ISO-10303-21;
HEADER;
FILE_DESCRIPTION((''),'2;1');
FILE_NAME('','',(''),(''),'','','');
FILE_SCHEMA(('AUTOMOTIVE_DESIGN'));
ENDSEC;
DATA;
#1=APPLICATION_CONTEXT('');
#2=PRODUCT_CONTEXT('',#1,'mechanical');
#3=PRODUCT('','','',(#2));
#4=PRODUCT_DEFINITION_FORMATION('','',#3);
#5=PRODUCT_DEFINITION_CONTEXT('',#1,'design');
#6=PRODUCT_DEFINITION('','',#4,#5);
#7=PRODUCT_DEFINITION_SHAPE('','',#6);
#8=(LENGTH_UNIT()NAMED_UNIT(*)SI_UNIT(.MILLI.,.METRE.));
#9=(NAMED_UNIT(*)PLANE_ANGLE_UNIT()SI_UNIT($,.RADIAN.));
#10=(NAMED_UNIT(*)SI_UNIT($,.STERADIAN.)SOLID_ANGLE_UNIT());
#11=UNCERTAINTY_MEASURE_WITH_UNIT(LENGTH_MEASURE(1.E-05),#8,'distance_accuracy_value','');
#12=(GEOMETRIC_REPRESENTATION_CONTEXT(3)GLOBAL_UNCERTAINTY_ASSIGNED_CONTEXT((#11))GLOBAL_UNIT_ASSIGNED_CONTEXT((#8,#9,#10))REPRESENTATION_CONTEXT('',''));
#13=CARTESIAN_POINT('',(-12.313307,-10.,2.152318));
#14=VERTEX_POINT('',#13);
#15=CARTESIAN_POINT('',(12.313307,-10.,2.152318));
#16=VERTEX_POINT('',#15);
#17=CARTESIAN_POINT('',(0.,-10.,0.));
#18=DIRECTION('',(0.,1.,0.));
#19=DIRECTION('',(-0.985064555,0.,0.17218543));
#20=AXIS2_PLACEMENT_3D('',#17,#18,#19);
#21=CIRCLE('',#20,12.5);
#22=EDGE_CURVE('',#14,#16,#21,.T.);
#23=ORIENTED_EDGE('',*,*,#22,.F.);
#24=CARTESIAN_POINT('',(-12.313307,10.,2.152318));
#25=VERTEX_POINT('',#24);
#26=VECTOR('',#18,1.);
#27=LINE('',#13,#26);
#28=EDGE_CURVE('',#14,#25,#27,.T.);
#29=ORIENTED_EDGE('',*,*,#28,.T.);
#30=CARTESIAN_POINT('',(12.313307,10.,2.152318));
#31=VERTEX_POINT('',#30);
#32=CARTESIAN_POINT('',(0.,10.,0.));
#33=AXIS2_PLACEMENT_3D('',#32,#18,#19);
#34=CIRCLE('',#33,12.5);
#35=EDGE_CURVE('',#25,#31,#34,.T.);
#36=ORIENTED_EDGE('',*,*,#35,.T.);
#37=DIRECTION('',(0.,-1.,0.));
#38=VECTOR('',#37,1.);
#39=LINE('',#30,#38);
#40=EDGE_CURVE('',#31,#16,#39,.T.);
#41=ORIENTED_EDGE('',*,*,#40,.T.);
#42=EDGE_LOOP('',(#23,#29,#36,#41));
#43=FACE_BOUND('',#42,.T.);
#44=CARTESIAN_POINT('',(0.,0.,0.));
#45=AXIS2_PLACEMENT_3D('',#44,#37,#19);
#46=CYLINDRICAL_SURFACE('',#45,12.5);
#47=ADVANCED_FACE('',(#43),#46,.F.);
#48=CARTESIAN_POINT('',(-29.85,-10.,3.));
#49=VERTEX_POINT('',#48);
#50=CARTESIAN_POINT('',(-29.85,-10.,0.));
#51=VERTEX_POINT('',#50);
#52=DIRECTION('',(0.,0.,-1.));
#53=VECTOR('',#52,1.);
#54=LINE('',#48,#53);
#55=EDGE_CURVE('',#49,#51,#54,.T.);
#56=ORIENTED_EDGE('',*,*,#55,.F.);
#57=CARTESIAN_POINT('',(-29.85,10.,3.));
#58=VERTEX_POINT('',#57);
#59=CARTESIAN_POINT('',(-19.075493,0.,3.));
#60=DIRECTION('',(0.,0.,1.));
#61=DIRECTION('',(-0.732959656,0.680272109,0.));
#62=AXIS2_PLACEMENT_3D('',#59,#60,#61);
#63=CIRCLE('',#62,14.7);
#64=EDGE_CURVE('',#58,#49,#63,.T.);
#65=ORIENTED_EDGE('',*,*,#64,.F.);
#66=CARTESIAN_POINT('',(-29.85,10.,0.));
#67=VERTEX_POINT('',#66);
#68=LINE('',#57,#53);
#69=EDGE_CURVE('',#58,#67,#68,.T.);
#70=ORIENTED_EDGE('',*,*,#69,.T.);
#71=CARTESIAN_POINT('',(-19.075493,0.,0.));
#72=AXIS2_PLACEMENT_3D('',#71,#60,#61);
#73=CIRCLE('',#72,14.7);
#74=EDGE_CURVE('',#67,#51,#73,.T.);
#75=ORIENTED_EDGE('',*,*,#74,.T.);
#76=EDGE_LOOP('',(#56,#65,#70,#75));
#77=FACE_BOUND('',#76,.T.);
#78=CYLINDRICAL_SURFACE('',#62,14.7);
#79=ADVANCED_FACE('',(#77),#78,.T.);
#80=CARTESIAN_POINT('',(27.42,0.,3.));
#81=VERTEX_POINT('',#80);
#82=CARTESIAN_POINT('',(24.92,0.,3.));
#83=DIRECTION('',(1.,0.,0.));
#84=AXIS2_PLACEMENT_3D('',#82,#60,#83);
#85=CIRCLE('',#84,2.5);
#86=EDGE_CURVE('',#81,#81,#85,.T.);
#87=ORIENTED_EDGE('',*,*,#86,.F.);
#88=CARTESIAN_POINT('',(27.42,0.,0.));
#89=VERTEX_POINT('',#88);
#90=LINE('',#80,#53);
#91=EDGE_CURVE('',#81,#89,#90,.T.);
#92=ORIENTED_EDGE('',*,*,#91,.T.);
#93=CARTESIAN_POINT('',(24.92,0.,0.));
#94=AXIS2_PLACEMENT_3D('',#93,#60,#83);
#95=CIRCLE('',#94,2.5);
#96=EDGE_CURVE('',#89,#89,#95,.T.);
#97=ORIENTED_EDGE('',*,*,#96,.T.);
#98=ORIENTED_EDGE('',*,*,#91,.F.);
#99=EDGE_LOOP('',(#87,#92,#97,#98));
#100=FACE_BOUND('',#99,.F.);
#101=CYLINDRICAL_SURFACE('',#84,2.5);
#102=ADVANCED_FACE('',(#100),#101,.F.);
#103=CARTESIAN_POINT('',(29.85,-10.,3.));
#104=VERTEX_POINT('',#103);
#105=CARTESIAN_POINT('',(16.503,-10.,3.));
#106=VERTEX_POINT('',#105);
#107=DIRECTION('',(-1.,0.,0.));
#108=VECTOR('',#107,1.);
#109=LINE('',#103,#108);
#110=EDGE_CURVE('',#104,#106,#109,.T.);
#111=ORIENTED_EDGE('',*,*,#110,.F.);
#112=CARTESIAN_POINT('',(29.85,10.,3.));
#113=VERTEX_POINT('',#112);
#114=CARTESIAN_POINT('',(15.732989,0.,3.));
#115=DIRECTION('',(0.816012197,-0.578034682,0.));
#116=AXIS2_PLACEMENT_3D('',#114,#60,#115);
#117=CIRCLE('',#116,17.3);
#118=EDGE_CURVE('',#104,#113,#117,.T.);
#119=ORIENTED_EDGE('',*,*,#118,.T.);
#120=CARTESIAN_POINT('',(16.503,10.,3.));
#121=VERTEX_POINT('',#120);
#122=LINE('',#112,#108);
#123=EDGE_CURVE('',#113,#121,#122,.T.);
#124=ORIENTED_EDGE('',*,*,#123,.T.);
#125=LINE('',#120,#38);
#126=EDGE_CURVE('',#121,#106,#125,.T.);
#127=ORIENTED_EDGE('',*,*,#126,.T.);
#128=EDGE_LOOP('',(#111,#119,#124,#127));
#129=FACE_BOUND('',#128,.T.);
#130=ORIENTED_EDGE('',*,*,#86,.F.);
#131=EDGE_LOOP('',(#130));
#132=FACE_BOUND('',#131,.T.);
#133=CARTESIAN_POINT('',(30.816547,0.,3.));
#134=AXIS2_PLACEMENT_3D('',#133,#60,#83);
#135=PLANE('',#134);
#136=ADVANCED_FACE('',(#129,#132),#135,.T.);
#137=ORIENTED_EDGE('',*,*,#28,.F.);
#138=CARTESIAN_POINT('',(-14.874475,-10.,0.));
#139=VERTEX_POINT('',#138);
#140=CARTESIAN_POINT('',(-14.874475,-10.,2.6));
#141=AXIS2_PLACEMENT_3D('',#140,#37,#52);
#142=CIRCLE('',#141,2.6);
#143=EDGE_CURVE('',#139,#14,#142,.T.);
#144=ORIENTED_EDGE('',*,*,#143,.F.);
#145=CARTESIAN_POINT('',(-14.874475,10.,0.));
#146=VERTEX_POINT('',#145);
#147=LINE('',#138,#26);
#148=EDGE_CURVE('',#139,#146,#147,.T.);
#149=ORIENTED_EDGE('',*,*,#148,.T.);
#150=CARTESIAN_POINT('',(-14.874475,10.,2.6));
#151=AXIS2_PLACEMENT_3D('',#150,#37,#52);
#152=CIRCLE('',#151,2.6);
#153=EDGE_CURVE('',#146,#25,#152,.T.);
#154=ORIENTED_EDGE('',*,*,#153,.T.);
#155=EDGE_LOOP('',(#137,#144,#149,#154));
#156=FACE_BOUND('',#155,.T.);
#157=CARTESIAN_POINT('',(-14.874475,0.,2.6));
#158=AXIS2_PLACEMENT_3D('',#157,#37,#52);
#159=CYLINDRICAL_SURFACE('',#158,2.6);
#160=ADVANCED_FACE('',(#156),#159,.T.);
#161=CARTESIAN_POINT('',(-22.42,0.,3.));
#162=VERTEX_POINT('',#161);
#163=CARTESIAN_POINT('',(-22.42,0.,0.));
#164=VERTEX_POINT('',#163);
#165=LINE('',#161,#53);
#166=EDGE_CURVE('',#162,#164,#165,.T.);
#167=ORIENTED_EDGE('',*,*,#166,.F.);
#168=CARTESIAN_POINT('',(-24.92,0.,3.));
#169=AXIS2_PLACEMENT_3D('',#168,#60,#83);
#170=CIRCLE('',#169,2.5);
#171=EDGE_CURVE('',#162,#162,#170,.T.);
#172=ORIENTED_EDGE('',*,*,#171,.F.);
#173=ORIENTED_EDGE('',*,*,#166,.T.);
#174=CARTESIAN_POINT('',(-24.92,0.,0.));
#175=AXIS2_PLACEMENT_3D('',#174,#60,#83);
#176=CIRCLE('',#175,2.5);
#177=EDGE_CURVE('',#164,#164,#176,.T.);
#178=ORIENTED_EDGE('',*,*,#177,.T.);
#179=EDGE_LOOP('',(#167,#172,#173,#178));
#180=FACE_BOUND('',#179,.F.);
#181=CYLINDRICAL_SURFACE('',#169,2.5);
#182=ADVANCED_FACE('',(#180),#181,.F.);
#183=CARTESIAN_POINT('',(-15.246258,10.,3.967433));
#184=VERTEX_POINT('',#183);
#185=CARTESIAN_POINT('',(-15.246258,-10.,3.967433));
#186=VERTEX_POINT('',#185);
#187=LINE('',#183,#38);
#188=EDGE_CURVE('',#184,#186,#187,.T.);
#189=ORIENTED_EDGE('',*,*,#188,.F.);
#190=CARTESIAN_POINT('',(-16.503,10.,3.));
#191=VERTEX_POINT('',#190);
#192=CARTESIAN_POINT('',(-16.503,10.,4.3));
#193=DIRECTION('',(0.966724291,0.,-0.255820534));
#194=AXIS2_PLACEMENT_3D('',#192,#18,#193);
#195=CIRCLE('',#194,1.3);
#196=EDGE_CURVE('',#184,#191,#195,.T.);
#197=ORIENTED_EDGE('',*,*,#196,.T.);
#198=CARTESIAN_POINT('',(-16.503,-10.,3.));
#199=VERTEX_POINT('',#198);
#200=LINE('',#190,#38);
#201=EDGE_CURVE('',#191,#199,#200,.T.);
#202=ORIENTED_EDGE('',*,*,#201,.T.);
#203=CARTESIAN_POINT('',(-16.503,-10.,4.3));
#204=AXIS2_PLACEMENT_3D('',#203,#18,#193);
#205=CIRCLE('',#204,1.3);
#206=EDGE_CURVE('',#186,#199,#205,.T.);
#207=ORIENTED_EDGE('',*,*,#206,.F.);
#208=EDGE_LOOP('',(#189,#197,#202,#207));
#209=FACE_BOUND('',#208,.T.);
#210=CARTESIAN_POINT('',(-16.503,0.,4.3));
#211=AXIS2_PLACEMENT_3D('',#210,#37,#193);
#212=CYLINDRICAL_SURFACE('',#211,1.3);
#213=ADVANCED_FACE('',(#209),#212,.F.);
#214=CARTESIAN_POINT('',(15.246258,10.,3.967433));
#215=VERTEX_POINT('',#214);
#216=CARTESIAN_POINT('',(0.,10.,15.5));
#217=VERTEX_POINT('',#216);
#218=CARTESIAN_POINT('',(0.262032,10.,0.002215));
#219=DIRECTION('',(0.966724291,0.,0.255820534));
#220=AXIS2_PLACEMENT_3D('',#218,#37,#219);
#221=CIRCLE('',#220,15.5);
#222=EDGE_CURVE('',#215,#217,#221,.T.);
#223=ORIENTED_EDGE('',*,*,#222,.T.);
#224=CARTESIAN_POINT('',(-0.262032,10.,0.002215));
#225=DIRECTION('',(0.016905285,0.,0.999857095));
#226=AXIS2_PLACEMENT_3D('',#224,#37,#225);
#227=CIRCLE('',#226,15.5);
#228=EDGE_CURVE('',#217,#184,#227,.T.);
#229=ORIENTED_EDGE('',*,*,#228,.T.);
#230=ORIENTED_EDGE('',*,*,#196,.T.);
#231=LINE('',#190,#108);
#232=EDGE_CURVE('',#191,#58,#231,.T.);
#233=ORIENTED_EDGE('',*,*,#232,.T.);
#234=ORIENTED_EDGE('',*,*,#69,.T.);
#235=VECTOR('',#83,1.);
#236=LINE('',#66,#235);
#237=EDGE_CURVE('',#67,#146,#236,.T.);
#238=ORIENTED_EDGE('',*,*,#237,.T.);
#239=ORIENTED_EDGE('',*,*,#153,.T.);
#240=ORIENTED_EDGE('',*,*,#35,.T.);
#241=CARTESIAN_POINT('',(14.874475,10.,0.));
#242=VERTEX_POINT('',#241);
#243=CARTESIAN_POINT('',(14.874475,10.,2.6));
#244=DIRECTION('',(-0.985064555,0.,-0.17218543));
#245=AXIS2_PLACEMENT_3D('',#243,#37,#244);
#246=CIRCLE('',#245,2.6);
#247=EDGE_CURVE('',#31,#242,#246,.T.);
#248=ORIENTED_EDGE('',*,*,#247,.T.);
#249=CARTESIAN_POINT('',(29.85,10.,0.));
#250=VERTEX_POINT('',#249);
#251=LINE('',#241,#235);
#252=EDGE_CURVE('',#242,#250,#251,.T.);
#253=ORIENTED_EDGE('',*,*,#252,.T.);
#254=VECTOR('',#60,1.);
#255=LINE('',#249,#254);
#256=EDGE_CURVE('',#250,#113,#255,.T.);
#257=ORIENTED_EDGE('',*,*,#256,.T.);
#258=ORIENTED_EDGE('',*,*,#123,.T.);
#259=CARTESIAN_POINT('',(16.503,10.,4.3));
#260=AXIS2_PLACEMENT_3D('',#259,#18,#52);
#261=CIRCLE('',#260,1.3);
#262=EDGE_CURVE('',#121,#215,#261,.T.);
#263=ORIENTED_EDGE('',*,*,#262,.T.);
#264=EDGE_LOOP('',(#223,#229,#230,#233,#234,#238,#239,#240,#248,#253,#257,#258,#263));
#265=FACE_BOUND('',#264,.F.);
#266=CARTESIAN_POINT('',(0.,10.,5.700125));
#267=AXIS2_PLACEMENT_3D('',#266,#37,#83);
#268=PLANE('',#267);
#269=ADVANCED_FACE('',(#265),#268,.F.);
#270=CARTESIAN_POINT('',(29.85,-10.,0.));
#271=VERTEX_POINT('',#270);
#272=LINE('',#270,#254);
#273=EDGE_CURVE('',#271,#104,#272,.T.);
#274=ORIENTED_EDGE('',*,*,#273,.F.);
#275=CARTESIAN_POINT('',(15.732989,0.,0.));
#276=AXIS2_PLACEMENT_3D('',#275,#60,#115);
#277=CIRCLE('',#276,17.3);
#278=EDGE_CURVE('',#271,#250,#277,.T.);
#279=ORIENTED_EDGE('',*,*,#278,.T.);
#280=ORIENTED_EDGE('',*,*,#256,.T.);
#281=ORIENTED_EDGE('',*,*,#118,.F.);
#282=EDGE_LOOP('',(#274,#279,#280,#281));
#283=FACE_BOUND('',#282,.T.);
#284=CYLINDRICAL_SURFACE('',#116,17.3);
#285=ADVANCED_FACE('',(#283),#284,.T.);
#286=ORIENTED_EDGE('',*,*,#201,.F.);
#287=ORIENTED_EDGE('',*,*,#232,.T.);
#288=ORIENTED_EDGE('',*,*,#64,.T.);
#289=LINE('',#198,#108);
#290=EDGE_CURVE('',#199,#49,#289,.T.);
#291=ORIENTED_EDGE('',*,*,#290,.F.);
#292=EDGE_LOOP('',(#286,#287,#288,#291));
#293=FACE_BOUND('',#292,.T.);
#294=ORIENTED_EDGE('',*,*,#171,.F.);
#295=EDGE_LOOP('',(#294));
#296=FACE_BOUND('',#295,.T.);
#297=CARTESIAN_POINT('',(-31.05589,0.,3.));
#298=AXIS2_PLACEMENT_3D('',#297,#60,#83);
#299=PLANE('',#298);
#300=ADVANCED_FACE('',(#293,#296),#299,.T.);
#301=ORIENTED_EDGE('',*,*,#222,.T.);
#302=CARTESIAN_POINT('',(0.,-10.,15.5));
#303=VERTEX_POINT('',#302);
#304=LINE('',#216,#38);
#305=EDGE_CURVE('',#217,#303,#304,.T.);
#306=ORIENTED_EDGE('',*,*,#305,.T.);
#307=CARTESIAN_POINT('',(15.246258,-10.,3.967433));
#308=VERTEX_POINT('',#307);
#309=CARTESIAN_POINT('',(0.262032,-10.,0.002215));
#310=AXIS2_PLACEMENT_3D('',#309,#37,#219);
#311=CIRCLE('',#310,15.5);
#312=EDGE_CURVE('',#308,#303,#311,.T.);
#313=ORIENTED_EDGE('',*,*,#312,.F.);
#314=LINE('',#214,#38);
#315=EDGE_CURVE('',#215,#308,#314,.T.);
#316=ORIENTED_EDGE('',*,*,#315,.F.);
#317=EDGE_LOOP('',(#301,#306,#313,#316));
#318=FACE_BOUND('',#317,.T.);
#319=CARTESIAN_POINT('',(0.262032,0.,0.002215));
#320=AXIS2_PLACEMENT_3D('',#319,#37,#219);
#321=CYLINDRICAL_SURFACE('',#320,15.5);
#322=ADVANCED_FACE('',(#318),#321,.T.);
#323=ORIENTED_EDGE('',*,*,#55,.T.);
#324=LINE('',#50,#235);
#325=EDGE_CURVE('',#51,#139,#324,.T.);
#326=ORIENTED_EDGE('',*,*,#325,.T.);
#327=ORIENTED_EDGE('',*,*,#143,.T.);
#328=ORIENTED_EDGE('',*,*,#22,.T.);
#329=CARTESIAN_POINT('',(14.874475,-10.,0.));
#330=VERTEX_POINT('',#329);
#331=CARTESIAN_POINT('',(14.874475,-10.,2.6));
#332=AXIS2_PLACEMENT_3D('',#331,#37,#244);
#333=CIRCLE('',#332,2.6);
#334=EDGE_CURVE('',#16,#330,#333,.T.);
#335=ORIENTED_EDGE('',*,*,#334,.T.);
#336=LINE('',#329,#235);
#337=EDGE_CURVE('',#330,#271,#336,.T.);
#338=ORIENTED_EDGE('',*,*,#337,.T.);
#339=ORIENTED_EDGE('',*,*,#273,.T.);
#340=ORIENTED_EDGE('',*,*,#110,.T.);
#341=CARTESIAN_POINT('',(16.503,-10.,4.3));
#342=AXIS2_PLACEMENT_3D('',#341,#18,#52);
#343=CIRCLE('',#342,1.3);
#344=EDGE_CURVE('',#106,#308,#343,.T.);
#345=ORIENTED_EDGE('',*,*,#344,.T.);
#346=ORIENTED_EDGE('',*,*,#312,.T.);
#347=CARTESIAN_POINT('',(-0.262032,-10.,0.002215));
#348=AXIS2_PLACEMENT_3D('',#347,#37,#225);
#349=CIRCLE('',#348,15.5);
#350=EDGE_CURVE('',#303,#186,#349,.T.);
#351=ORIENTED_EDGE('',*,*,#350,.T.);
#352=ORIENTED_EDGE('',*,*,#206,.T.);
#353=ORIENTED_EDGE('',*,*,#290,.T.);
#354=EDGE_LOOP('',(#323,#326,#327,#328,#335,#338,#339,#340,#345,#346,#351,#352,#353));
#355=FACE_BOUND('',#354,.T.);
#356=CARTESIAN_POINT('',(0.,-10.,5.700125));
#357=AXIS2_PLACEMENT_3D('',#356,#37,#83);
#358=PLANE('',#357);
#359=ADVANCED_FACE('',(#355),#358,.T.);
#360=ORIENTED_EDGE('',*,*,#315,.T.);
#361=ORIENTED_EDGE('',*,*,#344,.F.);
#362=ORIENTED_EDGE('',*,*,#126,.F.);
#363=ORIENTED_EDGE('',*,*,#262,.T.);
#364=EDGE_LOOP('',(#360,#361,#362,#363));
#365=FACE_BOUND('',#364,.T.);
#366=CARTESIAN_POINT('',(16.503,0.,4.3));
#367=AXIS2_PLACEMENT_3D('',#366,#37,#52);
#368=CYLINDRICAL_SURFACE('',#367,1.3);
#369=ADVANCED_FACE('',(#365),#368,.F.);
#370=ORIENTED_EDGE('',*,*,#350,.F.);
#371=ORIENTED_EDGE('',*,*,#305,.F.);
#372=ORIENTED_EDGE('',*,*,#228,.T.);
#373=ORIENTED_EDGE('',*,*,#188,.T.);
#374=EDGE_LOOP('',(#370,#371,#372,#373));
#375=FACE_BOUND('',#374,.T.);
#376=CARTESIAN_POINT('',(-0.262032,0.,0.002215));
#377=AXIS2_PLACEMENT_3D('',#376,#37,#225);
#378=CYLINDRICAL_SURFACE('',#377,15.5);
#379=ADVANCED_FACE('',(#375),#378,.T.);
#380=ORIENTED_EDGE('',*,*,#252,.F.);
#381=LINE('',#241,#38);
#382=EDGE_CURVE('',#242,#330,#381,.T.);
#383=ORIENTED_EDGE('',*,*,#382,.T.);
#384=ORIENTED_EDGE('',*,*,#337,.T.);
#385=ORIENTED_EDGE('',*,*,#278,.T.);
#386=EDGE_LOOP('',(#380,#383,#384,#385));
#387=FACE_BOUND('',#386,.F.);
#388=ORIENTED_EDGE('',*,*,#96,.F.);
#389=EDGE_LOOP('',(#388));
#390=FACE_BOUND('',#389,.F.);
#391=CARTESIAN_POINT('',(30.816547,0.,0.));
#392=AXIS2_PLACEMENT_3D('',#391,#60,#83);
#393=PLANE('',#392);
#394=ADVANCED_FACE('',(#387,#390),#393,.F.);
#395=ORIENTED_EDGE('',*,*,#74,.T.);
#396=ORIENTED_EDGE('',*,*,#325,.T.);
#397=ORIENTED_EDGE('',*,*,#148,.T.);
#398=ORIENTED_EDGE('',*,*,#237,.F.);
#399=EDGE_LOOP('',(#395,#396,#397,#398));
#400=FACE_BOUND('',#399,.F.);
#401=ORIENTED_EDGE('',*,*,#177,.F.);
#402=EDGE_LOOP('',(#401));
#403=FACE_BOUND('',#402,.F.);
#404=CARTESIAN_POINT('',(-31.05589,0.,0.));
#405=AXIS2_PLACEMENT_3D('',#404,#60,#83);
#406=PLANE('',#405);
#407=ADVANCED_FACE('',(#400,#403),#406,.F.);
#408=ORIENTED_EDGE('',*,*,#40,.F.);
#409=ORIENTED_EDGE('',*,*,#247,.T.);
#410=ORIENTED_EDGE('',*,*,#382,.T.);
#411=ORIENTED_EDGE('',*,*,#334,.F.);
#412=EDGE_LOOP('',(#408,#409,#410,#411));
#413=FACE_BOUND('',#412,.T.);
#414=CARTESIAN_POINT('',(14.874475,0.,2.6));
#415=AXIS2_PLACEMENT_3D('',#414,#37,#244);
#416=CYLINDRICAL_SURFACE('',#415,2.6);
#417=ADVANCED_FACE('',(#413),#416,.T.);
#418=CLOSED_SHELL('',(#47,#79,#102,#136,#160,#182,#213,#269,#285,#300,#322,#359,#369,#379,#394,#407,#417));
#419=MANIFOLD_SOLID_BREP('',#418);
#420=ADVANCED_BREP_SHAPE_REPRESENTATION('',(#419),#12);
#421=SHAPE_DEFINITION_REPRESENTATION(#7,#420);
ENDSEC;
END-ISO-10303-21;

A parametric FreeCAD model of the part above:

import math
import FreeCAD as App
import Part
import Sketcher
from FreeCAD import Vector
Q = App.Units.Quantity

doc = App.newDocument("Part")
body = doc.addObject("PartDesign::Body", "Body")

# Sketch on XZ plane
sketch1 = body.newObject("Sketcher::SketchObject", "Sketch")
sketch1.AttachmentSupport = (doc.getObject("XZ_Plane"), [""])
sketch1.MapMode = "FlatFace"
sketch1.addGeometry([
    Part.ArcOfCircle(Part.Circle(Vector(0, 0, 0), Vector(0, 0, 1), 12.5), math.radians(10), math.radians(170)),  # 0
    Part.ArcOfCircle(Part.Circle(Vector(14.9, 2.6, 0), Vector(0, 0, 1), 2.6), math.radians(-170), math.radians(-90)),  # 1
    Part.LineSegment(Vector(14.9, 0, 0), Vector(29.9, 0, 0)),  # 2
    Part.LineSegment(Vector(29.9, 0, 0), Vector(29.9, 3, 0)),  # 3
    Part.LineSegment(Vector(29.9, 3, 0), Vector(16.5, 3, 0)),  # 4
    Part.ArcOfCircle(Part.Circle(Vector(16.5, 4.3, 0), Vector(0, 0, 1), 1.3), math.radians(-165), math.radians(-90)),  # 5
    Part.ArcOfCircle(Part.Circle(Vector(0.3, 0, 0), Vector(0, 0, 1), 15.5), math.radians(15), math.radians(91)),  # 6
    Part.ArcOfCircle(Part.Circle(Vector(-0.3, 0, 0), Vector(0, 0, 1), 15.5), math.radians(89), math.radians(165)),  # 7
    Part.ArcOfCircle(Part.Circle(Vector(-16.5, 4.3, 0), Vector(0, 0, 1), 1.3), math.radians(-90), math.radians(-15)),  # 8
    Part.LineSegment(Vector(-16.5, 3, 0), Vector(-29.9, 3, 0)),  # 9
    Part.LineSegment(Vector(-29.9, 3, 0), Vector(-29.9, 0, 0)),  # 10
    Part.LineSegment(Vector(-29.9, 0, 0), Vector(-14.9, 0, 0)),  # 11
    Part.ArcOfCircle(Part.Circle(Vector(-14.9, 2.6, 0), Vector(0, 0, 1), 2.6), math.radians(-90), math.radians(-10)),  # 12
], False)
sketch1.addConstraint([
    Sketcher.Constraint("Tangent", 0, 1, 1, 1),
    Sketcher.Constraint("Tangent", 1, 2, 2, 1),
    Sketcher.Constraint("Coincident", 2, 2, 3, 1),
    Sketcher.Constraint("Coincident", 3, 2, 4, 1),
    Sketcher.Constraint("Tangent", 4, 2, 5, 2),
    Sketcher.Constraint("Tangent", 5, 1, 6, 1),
    Sketcher.Constraint("Coincident", 6, 2, 7, 1),
    Sketcher.Constraint("Tangent", 7, 2, 8, 2),
    Sketcher.Constraint("Tangent", 8, 1, 9, 1),
    Sketcher.Constraint("Coincident", 9, 2, 10, 1),
    Sketcher.Constraint("Coincident", 10, 2, 11, 1),
    Sketcher.Constraint("Tangent", 11, 2, 12, 1),
    Sketcher.Constraint("Tangent", 12, 2, 0, 2),
    Sketcher.Constraint("Horizontal", 2),
    Sketcher.Constraint("Vertical", 3),
    Sketcher.Constraint("Horizontal", 4),
    Sketcher.Constraint("Horizontal", 9),
    Sketcher.Constraint("Vertical", 10),
    Sketcher.Constraint("Horizontal", 11),
    Sketcher.Constraint("Coincident", 0, 3, -1, 1),
    Sketcher.Constraint("Equal", 6, 7),
    Sketcher.Constraint("Equal", 5, 8),
    Sketcher.Constraint("Equal", 1, 12),
    Sketcher.Constraint("Symmetric", 2, 2, 10, 2, -1, 1),
    Sketcher.Constraint("Symmetric", 6, 3, 7, 3, -2),
    Sketcher.Constraint("PointOnObject", 1, 2, -1),
    Sketcher.Constraint("Horizontal", 5, 3, 8, 3),
    Sketcher.Constraint("Radius", 0, Q("12.5 mm")),
    Sketcher.Constraint("Radius", 1, Q("2.6 mm")),
    Sketcher.Constraint("Radius", 5, Q("1.3 mm")),
    Sketcher.Constraint("Radius", 6, Q("15.5 mm")),
    Sketcher.Constraint("DistanceY", 3, 1, 3, 2, Q("3 mm")),
    Sketcher.Constraint("DistanceY", -1, 1, 6, 2, Q("15.5 mm")),
    Sketcher.Constraint("DistanceX", 4, 2, 4, 1, Q("13.347 mm")),
    Sketcher.Constraint("DistanceX", -1, 1, 2, 2, Q("29.85 mm")),
])
pad1 = body.newObject("PartDesign::Pad", "Pad")
pad1.Profile = sketch1
pad1.Length = 20
pad1.Midplane = True

# Sketch on XY plane
sketch2 = body.newObject("Sketcher::SketchObject", "Sketch001")
sketch2.AttachmentSupport = (doc.getObject("XY_Plane"), [""])
sketch2.MapMode = "FlatFace"
sketch2.AttachmentOffset = App.Placement(Vector(0, 0, 3), App.Rotation())
sketch2.addGeometry([
    Part.Circle(Vector(24.9, 0, 0), Vector(0, 0, 1), 2.5),
    Part.Circle(Vector(-24.9, 0, 0), Vector(0, 0, 1), 2.5),
], False)
sketch2.addConstraint([
    Sketcher.Constraint("Equal", 0, 1),
    Sketcher.Constraint("Symmetric", 0, 3, 1, 3, -1, 1),
    Sketcher.Constraint("PointOnObject", 0, 3, -1),
    Sketcher.Constraint("Diameter", 0, Q("5 mm")),
    Sketcher.Constraint("DistanceX", -1, 1, 0, 3, Q("24.92 mm")),
])
pocket1 = body.newObject("PartDesign::Pocket", "Pocket")
pocket1.Profile = sketch2
pocket1.Length = 25

# Sketch on XY plane
sketch3 = body.newObject("Sketcher::SketchObject", "Sketch002")
sketch3.AttachmentSupport = (doc.getObject("XY_Plane"), [""])
sketch3.MapMode = "FlatFace"
sketch3.AttachmentOffset = App.Placement(Vector(0, 0, 3), App.Rotation())
sketch3.addGeometry([
    Part.LineSegment(Vector(-30, -10, 0), Vector(-30, 10, 0)),
    Part.ArcOfCircle(Part.Circle(Vector(-19, 0, 0), Vector(0, 0, 1), 15), math.radians(137), math.radians(223)),
], False)
sketch3.addConstraint([
    Sketcher.Constraint("Coincident", 0, 1, 1, 2),
    Sketcher.Constraint("Coincident", 1, 1, 0, 2),
    Sketcher.Constraint("Vertical", 0),
    Sketcher.Constraint("PointOnObject", 1, 3, -1),
    Sketcher.Constraint("Radius", 1, Q("14.7 mm")),
    Sketcher.Constraint("DistanceY", 0, 1, 0, 2, Q("20 mm")),
    Sketcher.Constraint("DistanceX", 0, 1, -1, 1, Q("29.85 mm")),
])
pad2 = body.newObject("PartDesign::Pad", "Pad001")
pad2.Profile = sketch3
pad2.Length = 3
pad2.Reversed = True

# Sketch on XY plane
sketch4 = body.newObject("Sketcher::SketchObject", "Sketch003")
sketch4.AttachmentSupport = (doc.getObject("XY_Plane"), [""])
sketch4.MapMode = "FlatFace"
sketch4.AttachmentOffset = App.Placement(Vector(0, 0, 3), App.Rotation())
sketch4.addGeometry([
    Part.LineSegment(Vector(30, 10, 0), Vector(30, -10, 0)),
    Part.ArcOfCircle(Part.Circle(Vector(16, 0, 0), Vector(0, 0, 1), 17), math.radians(-35), math.radians(35)),
], False)
sketch4.addConstraint([
    Sketcher.Constraint("Coincident", 0, 1, 1, 2),
    Sketcher.Constraint("Coincident", 1, 1, 0, 2),
    Sketcher.Constraint("Vertical", 0),
    Sketcher.Constraint("PointOnObject", 1, 3, -1),
    Sketcher.Constraint("Radius", 1, Q("17.3 mm")),
    Sketcher.Constraint("DistanceY", 0, 2, 0, 1, Q("20 mm")),
    Sketcher.Constraint("DistanceX", -1, 1, 0, 1, Q("29.85 mm")),
])
pad3 = body.newObject("PartDesign::Pad", "Pad002")
pad3.Profile = sketch4
pad3.Length = 3
pad3.Reversed = True

doc.recompute()
